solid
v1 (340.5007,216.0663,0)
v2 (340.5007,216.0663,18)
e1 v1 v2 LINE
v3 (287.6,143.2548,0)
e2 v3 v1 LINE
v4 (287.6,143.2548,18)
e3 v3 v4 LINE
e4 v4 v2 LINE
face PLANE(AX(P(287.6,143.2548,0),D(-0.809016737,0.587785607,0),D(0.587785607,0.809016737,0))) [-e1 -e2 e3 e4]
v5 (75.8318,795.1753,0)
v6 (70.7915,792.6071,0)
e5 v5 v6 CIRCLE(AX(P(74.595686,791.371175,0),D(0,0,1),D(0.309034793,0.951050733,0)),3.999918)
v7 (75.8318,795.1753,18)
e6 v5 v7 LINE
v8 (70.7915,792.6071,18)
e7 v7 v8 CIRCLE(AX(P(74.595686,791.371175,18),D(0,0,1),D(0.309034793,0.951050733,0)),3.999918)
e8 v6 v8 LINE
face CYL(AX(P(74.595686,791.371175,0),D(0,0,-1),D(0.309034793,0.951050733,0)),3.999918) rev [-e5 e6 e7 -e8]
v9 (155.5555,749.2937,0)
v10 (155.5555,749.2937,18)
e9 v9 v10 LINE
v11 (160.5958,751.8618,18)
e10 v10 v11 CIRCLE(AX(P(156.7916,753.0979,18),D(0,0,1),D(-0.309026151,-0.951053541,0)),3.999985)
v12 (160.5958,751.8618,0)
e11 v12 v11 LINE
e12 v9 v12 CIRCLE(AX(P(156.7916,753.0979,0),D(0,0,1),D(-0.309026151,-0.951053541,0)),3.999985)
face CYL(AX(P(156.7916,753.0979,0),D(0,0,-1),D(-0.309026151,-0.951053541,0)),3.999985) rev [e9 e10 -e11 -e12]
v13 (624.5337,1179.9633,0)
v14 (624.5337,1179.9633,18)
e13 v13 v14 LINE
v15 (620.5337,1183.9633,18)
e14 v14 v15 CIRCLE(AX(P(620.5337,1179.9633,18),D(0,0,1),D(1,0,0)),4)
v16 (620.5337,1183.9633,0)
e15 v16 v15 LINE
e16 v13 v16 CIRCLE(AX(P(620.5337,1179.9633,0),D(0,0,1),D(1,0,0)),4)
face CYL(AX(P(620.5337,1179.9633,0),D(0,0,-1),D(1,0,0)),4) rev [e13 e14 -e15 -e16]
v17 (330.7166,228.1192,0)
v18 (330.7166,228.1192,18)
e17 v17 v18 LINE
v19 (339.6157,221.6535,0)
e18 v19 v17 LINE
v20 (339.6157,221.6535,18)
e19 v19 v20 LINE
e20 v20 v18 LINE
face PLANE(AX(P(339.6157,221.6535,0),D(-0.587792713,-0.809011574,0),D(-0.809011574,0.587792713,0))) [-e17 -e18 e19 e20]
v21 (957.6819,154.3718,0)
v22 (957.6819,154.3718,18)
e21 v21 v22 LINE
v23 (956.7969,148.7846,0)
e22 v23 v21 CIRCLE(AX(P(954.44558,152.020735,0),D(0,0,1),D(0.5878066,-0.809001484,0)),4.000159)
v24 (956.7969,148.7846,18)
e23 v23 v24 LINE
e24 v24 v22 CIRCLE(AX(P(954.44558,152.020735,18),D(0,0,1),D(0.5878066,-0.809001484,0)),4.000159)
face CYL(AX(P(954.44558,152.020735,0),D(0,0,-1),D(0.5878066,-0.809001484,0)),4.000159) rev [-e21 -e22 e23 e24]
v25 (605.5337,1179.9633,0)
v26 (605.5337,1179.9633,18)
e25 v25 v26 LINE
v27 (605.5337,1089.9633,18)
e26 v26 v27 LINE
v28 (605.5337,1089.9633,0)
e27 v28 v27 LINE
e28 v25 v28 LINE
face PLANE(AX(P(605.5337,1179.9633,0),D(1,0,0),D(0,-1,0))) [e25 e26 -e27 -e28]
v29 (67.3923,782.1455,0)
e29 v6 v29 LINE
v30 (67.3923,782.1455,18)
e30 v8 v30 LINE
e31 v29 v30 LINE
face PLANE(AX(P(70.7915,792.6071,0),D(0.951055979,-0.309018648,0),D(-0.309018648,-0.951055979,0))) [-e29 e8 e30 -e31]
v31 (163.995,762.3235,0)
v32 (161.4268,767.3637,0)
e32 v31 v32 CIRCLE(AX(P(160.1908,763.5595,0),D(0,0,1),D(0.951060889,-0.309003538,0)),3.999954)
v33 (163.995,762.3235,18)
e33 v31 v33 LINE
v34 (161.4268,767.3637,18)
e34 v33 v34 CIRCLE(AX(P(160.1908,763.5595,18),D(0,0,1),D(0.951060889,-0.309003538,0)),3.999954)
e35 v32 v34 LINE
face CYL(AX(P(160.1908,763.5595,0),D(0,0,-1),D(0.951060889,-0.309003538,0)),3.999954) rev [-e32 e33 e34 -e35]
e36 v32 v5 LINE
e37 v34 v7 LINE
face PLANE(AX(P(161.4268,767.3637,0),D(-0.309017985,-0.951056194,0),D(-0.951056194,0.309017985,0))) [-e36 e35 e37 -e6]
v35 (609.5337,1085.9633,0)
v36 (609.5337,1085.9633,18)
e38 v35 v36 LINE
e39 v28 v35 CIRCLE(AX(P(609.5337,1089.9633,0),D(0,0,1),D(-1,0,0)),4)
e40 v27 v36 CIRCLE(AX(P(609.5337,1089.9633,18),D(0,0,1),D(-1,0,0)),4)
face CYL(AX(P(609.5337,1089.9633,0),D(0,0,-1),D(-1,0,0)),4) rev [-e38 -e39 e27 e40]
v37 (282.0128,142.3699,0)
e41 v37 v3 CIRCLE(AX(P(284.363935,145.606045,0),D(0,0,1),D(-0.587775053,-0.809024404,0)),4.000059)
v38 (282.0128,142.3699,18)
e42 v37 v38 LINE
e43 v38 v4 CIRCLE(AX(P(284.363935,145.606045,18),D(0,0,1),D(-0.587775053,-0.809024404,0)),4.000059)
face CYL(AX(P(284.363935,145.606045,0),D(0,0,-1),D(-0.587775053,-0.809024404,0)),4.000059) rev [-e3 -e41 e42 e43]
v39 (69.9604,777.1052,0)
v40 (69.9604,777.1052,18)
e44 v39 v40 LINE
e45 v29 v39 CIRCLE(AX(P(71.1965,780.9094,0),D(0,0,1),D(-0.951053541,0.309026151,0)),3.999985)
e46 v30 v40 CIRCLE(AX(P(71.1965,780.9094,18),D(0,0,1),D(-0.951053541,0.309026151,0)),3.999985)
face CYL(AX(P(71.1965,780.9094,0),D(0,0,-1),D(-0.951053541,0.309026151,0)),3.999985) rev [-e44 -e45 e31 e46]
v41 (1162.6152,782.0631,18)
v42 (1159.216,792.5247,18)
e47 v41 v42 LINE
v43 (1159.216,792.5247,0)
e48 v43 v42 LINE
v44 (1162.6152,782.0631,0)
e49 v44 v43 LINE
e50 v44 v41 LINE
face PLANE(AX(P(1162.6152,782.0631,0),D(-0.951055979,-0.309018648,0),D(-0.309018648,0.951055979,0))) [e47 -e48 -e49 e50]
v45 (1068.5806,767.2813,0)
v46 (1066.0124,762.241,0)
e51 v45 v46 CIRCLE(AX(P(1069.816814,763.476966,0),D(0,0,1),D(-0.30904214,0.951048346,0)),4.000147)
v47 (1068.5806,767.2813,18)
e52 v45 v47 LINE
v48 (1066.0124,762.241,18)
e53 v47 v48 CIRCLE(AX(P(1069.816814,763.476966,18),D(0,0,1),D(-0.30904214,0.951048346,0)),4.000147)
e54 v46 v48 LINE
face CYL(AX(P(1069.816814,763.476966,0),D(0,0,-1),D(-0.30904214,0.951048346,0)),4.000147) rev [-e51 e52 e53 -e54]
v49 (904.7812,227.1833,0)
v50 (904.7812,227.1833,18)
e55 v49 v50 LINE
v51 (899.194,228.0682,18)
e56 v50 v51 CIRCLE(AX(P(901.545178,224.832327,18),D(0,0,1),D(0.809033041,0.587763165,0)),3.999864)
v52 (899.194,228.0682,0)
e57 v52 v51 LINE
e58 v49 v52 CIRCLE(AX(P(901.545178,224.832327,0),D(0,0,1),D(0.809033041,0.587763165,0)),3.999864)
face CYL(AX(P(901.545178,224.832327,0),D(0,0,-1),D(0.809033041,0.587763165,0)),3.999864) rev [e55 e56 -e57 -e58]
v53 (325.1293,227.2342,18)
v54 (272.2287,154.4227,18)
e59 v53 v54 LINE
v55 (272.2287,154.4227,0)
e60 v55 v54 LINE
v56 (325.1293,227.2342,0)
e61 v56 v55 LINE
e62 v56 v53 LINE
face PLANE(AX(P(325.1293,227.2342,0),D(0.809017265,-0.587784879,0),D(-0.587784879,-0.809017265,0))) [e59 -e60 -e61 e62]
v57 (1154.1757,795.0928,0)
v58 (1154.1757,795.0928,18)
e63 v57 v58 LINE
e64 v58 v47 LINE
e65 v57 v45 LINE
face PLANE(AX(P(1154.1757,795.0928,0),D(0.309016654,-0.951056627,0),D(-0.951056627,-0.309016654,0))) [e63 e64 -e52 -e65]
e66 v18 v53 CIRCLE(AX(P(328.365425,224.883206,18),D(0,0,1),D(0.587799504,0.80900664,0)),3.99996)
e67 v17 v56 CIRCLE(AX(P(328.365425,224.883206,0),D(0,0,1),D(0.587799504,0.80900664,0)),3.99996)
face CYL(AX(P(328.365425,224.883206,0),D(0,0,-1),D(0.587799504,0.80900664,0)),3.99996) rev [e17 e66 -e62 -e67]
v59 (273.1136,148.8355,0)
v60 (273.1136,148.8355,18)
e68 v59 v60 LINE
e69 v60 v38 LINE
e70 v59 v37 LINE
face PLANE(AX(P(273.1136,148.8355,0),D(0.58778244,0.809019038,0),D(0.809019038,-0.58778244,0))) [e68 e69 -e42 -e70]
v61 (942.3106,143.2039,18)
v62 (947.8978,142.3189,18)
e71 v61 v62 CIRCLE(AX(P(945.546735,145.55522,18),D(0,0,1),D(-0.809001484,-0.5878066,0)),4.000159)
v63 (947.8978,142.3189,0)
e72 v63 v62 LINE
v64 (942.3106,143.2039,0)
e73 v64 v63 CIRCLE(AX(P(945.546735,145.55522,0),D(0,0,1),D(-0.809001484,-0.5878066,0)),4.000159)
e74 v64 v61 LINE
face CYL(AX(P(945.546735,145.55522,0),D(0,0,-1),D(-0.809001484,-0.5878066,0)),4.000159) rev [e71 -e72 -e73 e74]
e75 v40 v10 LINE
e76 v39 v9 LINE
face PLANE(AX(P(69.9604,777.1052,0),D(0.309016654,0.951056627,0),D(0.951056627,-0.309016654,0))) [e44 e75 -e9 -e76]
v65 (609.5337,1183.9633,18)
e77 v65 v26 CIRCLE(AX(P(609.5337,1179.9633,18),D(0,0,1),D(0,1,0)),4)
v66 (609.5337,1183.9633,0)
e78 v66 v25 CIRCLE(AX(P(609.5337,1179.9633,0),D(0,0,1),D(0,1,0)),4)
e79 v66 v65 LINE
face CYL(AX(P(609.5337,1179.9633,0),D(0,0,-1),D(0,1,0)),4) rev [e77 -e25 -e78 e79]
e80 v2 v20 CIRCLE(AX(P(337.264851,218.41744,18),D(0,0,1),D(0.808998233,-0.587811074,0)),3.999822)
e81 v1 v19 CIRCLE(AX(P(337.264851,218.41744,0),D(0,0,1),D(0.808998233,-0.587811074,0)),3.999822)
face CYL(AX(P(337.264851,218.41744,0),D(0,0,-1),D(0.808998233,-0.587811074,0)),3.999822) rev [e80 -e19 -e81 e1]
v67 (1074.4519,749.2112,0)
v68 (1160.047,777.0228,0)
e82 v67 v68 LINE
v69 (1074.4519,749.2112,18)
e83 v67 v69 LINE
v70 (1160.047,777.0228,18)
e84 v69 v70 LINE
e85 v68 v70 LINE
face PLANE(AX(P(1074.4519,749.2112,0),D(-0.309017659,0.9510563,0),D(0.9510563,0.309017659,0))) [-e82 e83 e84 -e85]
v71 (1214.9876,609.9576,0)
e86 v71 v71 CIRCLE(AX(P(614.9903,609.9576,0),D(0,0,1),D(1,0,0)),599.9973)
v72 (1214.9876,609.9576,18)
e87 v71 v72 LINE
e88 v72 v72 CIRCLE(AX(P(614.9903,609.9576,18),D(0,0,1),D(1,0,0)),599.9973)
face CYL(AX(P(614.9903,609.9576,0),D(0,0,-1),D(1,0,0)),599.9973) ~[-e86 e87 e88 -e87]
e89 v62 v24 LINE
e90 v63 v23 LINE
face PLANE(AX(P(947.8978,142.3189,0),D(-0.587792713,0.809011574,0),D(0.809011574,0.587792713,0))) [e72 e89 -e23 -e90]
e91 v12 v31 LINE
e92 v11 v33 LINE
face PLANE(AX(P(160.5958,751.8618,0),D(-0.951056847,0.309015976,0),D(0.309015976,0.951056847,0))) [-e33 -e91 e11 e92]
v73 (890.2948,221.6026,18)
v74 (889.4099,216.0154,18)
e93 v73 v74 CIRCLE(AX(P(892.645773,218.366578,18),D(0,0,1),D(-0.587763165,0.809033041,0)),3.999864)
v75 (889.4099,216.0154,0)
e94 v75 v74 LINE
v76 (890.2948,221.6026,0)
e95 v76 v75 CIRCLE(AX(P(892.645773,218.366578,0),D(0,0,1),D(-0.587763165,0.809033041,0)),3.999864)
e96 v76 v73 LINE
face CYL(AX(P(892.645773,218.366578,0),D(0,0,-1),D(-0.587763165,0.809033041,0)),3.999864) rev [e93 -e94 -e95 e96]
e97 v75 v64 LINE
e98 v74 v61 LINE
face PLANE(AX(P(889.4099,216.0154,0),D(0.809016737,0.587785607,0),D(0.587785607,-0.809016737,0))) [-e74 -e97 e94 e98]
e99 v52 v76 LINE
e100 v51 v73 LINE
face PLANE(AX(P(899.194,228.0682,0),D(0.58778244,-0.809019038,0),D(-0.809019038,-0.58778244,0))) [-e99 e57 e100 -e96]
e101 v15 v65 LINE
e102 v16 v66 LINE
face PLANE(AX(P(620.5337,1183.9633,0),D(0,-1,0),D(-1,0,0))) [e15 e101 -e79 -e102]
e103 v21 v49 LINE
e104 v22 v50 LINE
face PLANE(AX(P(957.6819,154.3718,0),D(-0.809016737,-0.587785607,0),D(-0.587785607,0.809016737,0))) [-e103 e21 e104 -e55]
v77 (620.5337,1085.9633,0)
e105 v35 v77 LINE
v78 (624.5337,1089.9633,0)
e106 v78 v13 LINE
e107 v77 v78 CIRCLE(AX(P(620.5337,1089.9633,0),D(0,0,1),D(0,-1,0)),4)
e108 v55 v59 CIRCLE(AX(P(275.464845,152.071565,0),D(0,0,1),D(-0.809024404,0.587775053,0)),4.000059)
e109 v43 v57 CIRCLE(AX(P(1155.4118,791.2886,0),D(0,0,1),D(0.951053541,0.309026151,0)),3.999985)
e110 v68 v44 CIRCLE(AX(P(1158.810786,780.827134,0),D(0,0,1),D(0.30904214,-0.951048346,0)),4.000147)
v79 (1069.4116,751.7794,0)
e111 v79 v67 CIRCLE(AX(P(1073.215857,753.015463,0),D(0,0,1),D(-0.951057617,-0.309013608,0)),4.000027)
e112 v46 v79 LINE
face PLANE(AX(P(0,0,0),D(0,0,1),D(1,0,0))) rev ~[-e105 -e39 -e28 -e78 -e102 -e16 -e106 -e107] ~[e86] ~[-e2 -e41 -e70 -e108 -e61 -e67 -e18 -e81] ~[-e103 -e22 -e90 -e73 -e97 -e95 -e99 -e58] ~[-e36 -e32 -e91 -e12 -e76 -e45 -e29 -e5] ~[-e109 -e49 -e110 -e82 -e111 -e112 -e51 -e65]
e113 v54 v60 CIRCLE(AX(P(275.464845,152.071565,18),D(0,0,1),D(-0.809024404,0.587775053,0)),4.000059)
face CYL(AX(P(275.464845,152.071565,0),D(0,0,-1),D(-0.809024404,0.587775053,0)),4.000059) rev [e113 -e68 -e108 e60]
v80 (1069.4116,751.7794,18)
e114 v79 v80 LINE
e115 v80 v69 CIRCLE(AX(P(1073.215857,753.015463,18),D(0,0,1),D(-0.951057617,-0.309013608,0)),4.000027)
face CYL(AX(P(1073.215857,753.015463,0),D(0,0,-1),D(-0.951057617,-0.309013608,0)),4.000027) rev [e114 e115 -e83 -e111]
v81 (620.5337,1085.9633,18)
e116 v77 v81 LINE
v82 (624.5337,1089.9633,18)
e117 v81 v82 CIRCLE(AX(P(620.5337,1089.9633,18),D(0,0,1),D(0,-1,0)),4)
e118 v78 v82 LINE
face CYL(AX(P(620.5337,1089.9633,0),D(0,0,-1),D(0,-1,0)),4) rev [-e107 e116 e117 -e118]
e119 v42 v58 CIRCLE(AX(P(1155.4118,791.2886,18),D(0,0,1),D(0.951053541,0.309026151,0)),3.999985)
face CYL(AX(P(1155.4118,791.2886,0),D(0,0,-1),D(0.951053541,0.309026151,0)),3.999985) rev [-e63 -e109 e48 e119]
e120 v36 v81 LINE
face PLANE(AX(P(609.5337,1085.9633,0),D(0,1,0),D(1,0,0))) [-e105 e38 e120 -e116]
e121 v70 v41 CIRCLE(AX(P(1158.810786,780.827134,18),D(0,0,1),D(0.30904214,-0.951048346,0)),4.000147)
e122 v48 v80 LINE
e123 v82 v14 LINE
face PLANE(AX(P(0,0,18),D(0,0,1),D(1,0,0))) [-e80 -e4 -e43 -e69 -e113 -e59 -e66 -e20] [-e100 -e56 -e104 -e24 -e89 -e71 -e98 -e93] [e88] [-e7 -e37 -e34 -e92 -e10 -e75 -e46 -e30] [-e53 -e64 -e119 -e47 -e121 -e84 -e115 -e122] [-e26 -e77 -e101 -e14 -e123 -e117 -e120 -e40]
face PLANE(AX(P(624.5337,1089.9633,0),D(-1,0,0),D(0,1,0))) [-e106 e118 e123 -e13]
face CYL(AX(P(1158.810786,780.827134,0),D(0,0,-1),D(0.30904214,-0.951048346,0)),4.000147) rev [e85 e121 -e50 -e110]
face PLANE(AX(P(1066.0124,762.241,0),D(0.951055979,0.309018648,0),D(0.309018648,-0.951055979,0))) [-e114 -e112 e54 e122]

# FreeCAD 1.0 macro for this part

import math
import FreeCAD as App
import Part
import Sketcher
Q = App.Units.Quantity

doc = App.newDocument("Part")
body = doc.addObject("PartDesign::Body", "Body")

sketch1 = body.newObject("Sketcher::SketchObject", "Sketch")
sketch1.AttachmentSupport = (doc.getObject("XY_Plane"), [""])
sketch1.MapMode = "FlatFace"
sketch1.addGeometry(Part.Circle(App.Vector(615, 610, 0), App.Vector(0, 0, 1), 600), False)
sketch1.addConstraint([
    Sketcher.Constraint("Diameter", 0, Q("1199.9946 mm")),
    Sketcher.Constraint("DistanceX", -1, 1, 0, 3, Q("614.9903 mm")),
    Sketcher.Constraint("DistanceY", -1, 1, 0, 3, Q("609.9576 mm")),
])
pad1 = body.newObject("PartDesign::Pad", "Pad")
pad1.Profile = sketch1
pad1.Length = 18

sketch2 = body.newObject("Sketcher::SketchObject", "Sketch001")
sketch2.AttachmentSupport = (doc.getObject("XY_Plane"), [""])
sketch2.MapMode = "FlatFace"
sketch2.addGeometry([
    Part.ArcOfCircle(Part.Circle(App.Vector(1158.8, 780.8, 0), App.Vector(0, 0, 1), 4), math.radians(-72), math.radians(18)),
    Part.LineSegment(App.Vector(1162.6, 782.1, 0), App.Vector(1159.2, 792.5, 0)),
    Part.ArcOfCircle(Part.Circle(App.Vector(1155.4, 791.3, 0), App.Vector(0, 0, 1), 4), math.radians(18), math.radians(108)),
    Part.LineSegment(App.Vector(1154.2, 795.1, 0), App.Vector(1068.6, 767.3, 0)),
    Part.ArcOfCircle(Part.Circle(App.Vector(1069.8, 763.5, 0), App.Vector(0, 0, 1), 4), math.radians(108), math.radians(198)),
    Part.LineSegment(App.Vector(1066, 762.2, 0), App.Vector(1069.4, 751.8, 0)),
    Part.ArcOfCircle(Part.Circle(App.Vector(1073.2, 753, 0), App.Vector(0, 0, 1), 4), math.radians(-162), math.radians(-72)),
    Part.LineSegment(App.Vector(1074.5, 749.2, 0), App.Vector(1160, 777, 0)),
    Part.ArcOfCircle(Part.Circle(App.Vector(945.5, 145.6, 0), App.Vector(0, 0, 1), 4), math.radians(-144), math.radians(-54)),
    Part.LineSegment(App.Vector(947.9, 142.3, 0), App.Vector(956.8, 148.8, 0)),
    Part.ArcOfCircle(Part.Circle(App.Vector(954.4, 152, 0), App.Vector(0, 0, 1), 4), math.radians(-54), math.radians(36)),
    Part.LineSegment(App.Vector(957.7, 154.4, 0), App.Vector(904.8, 227.2, 0)),
    Part.ArcOfCircle(Part.Circle(App.Vector(901.5, 224.8, 0), App.Vector(0, 0, 1), 4), math.radians(36), math.radians(126)),
    Part.LineSegment(App.Vector(899.2, 228.1, 0), App.Vector(890.3, 221.6, 0)),
    Part.ArcOfCircle(Part.Circle(App.Vector(892.6, 218.4, 0), App.Vector(0, 0, 1), 4), math.radians(126), math.radians(216)),
    Part.LineSegment(App.Vector(889.4, 216, 0), App.Vector(942.3, 143.2, 0)),
    Part.ArcOfCircle(Part.Circle(App.Vector(620.5, 1180, 0), App.Vector(0, 0, 1), 4), math.radians(0), math.radians(90)),
    Part.LineSegment(App.Vector(620.5, 1184, 0), App.Vector(609.5, 1184, 0)),
    Part.ArcOfCircle(Part.Circle(App.Vector(609.5, 1180, 0), App.Vector(0, 0, 1), 4), math.radians(90), math.radians(180)),
    Part.LineSegment(App.Vector(605.5, 1180, 0), App.Vector(605.5, 1090, 0)),
    Part.ArcOfCircle(Part.Circle(App.Vector(609.5, 1090, 0), App.Vector(0, 0, 1), 4), math.radians(180), math.radians(270)),
    Part.LineSegment(App.Vector(609.5, 1086, 0), App.Vector(620.5, 1086, 0)),
    Part.ArcOfCircle(Part.Circle(App.Vector(620.5, 1090, 0), App.Vector(0, 0, 1), 4), math.radians(-90), math.radians(0)),
    Part.LineSegment(App.Vector(624.5, 1090, 0), App.Vector(624.5, 1180, 0)),
    Part.ArcOfCircle(Part.Circle(App.Vector(275.5, 152.1, 0), App.Vector(0, 0, 1), 4), math.radians(144), math.radians(234)),
    Part.LineSegment(App.Vector(273.1, 148.8, 0), App.Vector(282, 142.4, 0)),
    Part.ArcOfCircle(Part.Circle(App.Vector(284.4, 145.6, 0), App.Vector(0, 0, 1), 4), math.radians(-126), math.radians(-36)),
    Part.LineSegment(App.Vector(287.6, 143.3, 0), App.Vector(340.5, 216.1, 0)),
    Part.ArcOfCircle(Part.Circle(App.Vector(337.3, 218.4, 0), App.Vector(0, 0, 1), 4), math.radians(-36), math.radians(54)),
    Part.LineSegment(App.Vector(339.6, 221.7, 0), App.Vector(330.7, 228.1, 0)),
    Part.ArcOfCircle(Part.Circle(App.Vector(328.4, 224.9, 0), App.Vector(0, 0, 1), 4), math.radians(54), math.radians(144)),
    Part.LineSegment(App.Vector(325.1, 227.2, 0), App.Vector(272.2, 154.4, 0)),
    Part.ArcOfCircle(Part.Circle(App.Vector(74.6, 791.4, 0), App.Vector(0, 0, 1), 4), math.radians(72), math.radians(162)),
    Part.LineSegment(App.Vector(70.8, 792.6, 0), App.Vector(67.4, 782.1, 0)),
    Part.ArcOfCircle(Part.Circle(App.Vector(71.2, 780.9, 0), App.Vector(0, 0, 1), 4), math.radians(162), math.radians(252)),
    Part.LineSegment(App.Vector(70, 777.1, 0), App.Vector(155.6, 749.3, 0)),
    Part.ArcOfCircle(Part.Circle(App.Vector(156.8, 753.1, 0), App.Vector(0, 0, 1), 4), math.radians(-108), math.radians(-18)),
    Part.LineSegment(App.Vector(160.6, 751.9, 0), App.Vector(164, 762.3, 0)),
    Part.ArcOfCircle(Part.Circle(App.Vector(160.2, 763.6, 0), App.Vector(0, 0, 1), 4), math.radians(-18), math.radians(72)),
    Part.LineSegment(App.Vector(161.4, 767.4, 0), App.Vector(75.8, 795.2, 0)),
], False)
sketch2.addConstraint([
    Sketcher.Constraint("Tangent", 0, 2, 1, 1),
    Sketcher.Constraint("Tangent", 1, 2, 2, 1),
    Sketcher.Constraint("Tangent", 2, 2, 3, 1),
    Sketcher.Constraint("Tangent", 3, 2, 4, 1),
    Sketcher.Constraint("Tangent", 4, 2, 5, 1),
    Sketcher.Constraint("Tangent", 5, 2, 6, 1),
    Sketcher.Constraint("Tangent", 6, 2, 7, 1),
    Sketcher.Constraint("Tangent", 7, 2, 0, 1),
    Sketcher.Constraint("Tangent", 8, 2, 9, 1),
    Sketcher.Constraint("Tangent", 9, 2, 10, 1),
    Sketcher.Constraint("Tangent", 10, 2, 11, 1),
    Sketcher.Constraint("Tangent", 11, 2, 12, 1),
    Sketcher.Constraint("Tangent", 12, 2, 13, 1),
    Sketcher.Constraint("Tangent", 13, 2, 14, 1),
    Sketcher.Constraint("Tangent", 14, 2, 15, 1),
    Sketcher.Constraint("Tangent", 15, 2, 8, 1),
    Sketcher.Constraint("Tangent", 16, 2, 17, 1),
    Sketcher.Constraint("Tangent", 17, 2, 18, 1),
    Sketcher.Constraint("Tangent", 18, 2, 19, 1),
    Sketcher.Constraint("Tangent", 19, 2, 20, 1),
    Sketcher.Constraint("Tangent", 20, 2, 21, 1),
    Sketcher.Constraint("Tangent", 21, 2, 22, 1),
    Sketcher.Constraint("Tangent", 22, 2, 23, 1),
    Sketcher.Constraint("Tangent", 23, 2, 16, 1),
    Sketcher.Constraint("Tangent", 24, 2, 25, 1),
    Sketcher.Constraint("Tangent", 25, 2, 26, 1),
    Sketcher.Constraint("Tangent", 26, 2, 27, 1),
    Sketcher.Constraint("Tangent", 27, 2, 28, 1),
    Sketcher.Constraint("Tangent", 28, 2, 29, 1),
    Sketcher.Constraint("Tangent", 29, 2, 30, 1),
    Sketcher.Constraint("Tangent", 30, 2, 31, 1),
    Sketcher.Constraint("Tangent", 31, 2, 24, 1),
    Sketcher.Constraint("Tangent", 32, 2, 33, 1),
    Sketcher.Constraint("Tangent", 33, 2, 34, 1),
    Sketcher.Constraint("Tangent", 34, 2, 35, 1),
    Sketcher.Constraint("Tangent", 35, 2, 36, 1),
    Sketcher.Constraint("Tangent", 36, 2, 37, 1),
    Sketcher.Constraint("Tangent", 37, 2, 38, 1),
    Sketcher.Constraint("Tangent", 38, 2, 39, 1),
    Sketcher.Constraint("Tangent", 39, 2, 32, 1),
    Sketcher.Constraint("Horizontal", 17),
    Sketcher.Constraint("Vertical", 19),
    Sketcher.Constraint("Horizontal", 21),
    Sketcher.Constraint("Vertical", 23),
    Sketcher.Constraint("Equal", 0, 2),
    Sketcher.Constraint("Equal", 2, 4),
    Sketcher.Constraint("Equal", 4, 6),
    Sketcher.Constraint("Equal", 6, 8),
    Sketcher.Constraint("Equal", 8, 10),
    Sketcher.Constraint("Equal", 10, 12),
    Sketcher.Constraint("Equal", 12, 14),
    Sketcher.Constraint("Equal", 14, 16),
    Sketcher.Constraint("Equal", 16, 18),
    Sketcher.Constraint("Equal", 18, 20),
    Sketcher.Constraint("Equal", 20, 22),
    Sketcher.Constraint("Equal", 22, 24),
    Sketcher.Constraint("Equal", 24, 26),
    Sketcher.Constraint("Equal", 26, 28),
    Sketcher.Constraint("Equal", 28, 30),
    Sketcher.Constraint("Equal", 30, 32),
    Sketcher.Constraint("Equal", 32, 34),
    Sketcher.Constraint("Equal", 34, 36),
    Sketcher.Constraint("Equal", 36, 38),
    Sketcher.Constraint("Perpendicular", 1, 3),
    Sketcher.Constraint("Perpendicular", 3, 5),
    Sketcher.Constraint("Perpendicular", 5, 7),
    Sketcher.Constraint("Perpendicular", 9, 11),
    Sketcher.Constraint("Perpendicular", 11, 13),
    Sketcher.Constraint("Perpendicular", 13, 15),
    Sketcher.Constraint("Perpendicular", 25, 27),
    Sketcher.Constraint("Perpendicular", 27, 29),
    Sketcher.Constraint("Perpendicular", 29, 31),
    Sketcher.Constraint("Perpendicular", 33, 35),
    Sketcher.Constraint("Perpendicular", 35, 37),
    Sketcher.Constraint("Perpendicular", 37, 39),
    Sketcher.Constraint("Equal", 5, 9),
    Sketcher.Constraint("Equal", 7, 11),
    Sketcher.Constraint("Equal", 13, 25),
    Sketcher.Constraint("Equal", 15, 27),
    Sketcher.Constraint("Equal", 29, 33),
    Sketcher.Constraint("Equal", 31, 35),
    Sketcher.Constraint("DistanceY", 19, 2, 19, 1, Q("90 mm")),
    Sketcher.Constraint("Distance", 3, Q("90 mm")),
    Sketcher.Constraint("Radius", 0, Q("4 mm")),
    Sketcher.Constraint("DistanceX", 19, 2, 22, 2, Q("19 mm")),
    Sketcher.Constraint("Angle", 1, Q("108 deg")),
    Sketcher.Constraint("Angle", 9, Q("36.0005 deg")),
    Sketcher.Constraint("Angle", 25, Q("-35.9998 deg")),
    Sketcher.Constraint("Angle", 33, Q("-108 deg")),
    Sketcher.Constraint("Distance", 1, Q("11 mm")),
    Sketcher.Constraint("DistanceX", -1, 1, 26, 2, Q("287.6 mm")),
    Sketcher.Constraint("DistanceY", -1, 1, 25, 2, Q("142.37 mm")),
    Sketcher.Constraint("DistanceX", 8, 3, 4, 3, Q("124.27 mm")),
    Sketcher.Constraint("DistanceX", -1, 1, 0, 3, Q("1158.811 mm")),
    Sketcher.Constraint("DistanceY", -1, 1, 0, 3, Q("780.827 mm")),
    Sketcher.Constraint("DistanceY", -1, 1, 8, 3, Q("145.555 mm")),
    Sketcher.Constraint("DistanceY", -1, 1, 32, 3, Q("791.371 mm")),
    Sketcher.Constraint("DistanceX", -1, 1, 37, 2, Q("163.995 mm")),
    Sketcher.Constraint("DistanceX", 16, 3, 4, 3, Q("449.283 mm")),
    Sketcher.Constraint("DistanceY", 12, 3, 16, 3, Q("955.131 mm")),
])
pocket1 = body.newObject("PartDesign::Pocket", "Pocket")
pocket1.Profile = sketch2
pocket1.Length = 18
pocket1.Reversed = True

doc.recompute()
